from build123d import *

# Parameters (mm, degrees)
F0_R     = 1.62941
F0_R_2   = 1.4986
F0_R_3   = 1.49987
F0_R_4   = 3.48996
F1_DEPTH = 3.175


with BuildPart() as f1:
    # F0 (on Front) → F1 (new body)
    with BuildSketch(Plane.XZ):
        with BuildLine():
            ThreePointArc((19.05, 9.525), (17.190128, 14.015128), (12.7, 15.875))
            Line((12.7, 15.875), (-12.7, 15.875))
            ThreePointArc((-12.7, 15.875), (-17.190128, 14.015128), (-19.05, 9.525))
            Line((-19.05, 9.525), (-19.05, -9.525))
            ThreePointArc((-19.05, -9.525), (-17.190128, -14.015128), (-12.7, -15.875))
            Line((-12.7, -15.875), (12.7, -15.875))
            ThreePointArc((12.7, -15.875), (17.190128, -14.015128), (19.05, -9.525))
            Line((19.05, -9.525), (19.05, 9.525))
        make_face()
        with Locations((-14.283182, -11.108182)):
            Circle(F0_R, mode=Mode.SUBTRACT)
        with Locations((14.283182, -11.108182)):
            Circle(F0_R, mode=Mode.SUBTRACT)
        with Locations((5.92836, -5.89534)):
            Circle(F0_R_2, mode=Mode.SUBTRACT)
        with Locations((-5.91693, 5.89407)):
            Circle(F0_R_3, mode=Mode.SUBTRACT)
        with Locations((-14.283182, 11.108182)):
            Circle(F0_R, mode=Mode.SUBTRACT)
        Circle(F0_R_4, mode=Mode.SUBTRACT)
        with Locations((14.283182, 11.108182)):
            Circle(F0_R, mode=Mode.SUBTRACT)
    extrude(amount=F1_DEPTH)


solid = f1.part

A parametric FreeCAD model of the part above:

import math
import FreeCAD as App
import Part
import Sketcher
from FreeCAD import Vector
Q = App.Units.Quantity

doc = App.newDocument("Part")
body = doc.addObject("PartDesign::Body", "Body")

sketch1 = doc.addObject("Sketcher::SketchObject", "Sketch")
body.addObject(sketch1)
sketch1.AttachmentSupport = (doc.XZ_Plane, [""])
sketch1.MapMode = "FlatFace"
sketch1.addGeometry(Part.ArcOfCircle(Part.Circle(Vector(12.7, 9.525, 0), Vector(0, 0, 1), 6.35), math.radians(0.000002), math.radians(89.999998)), False)
sketch1.addGeometry(Part.LineSegment(Vector(12.7, 15.875, 0), Vector(-12.7, 15.875, 0)), False)
sketch1.addGeometry(Part.ArcOfCircle(Part.Circle(Vector(-12.7, 9.525, 0), Vector(0, 0, 1), 6.35), math.radians(90.000002), math.radians(179.999998)), False)
sketch1.addGeometry(Part.LineSegment(Vector(-19.05, 9.525, 0), Vector(-19.05, -9.525, 0)), False)
sketch1.addGeometry(Part.ArcOfCircle(Part.Circle(Vector(-12.7, -9.525, 0), Vector(0, 0, 1), 6.35), math.radians(-179.999998), math.radians(-90.000002)), False)
sketch1.addGeometry(Part.LineSegment(Vector(-12.7, -15.875, 0), Vector(12.7, -15.875, 0)), False)
sketch1.addGeometry(Part.ArcOfCircle(Part.Circle(Vector(12.7, -9.525, 0), Vector(0, 0, 1), 6.35), math.radians(-89.999998), math.radians(-0.000002)), False)
sketch1.addGeometry(Part.LineSegment(Vector(19.05, -9.525, 0), Vector(19.05, 9.525, 0)), False)
sketch1.addGeometry(Part.Circle(Vector(-14.283182, -11.108182, 0), Vector(0, 0, 1), 1.62941), False)
sketch1.addGeometry(Part.Circle(Vector(14.283182, -11.108182, 0), Vector(0, 0, 1), 1.62941), False)
sketch1.addGeometry(Part.Circle(Vector(5.92836, -5.89534, 0), Vector(0, 0, 1), 1.4986), False)
sketch1.addGeometry(Part.Circle(Vector(-5.91693, 5.89407, 0), Vector(0, 0, 1), 1.49987), False)
sketch1.addGeometry(Part.Circle(Vector(-14.283182, 11.108182, 0), Vector(0, 0, 1), 1.62941), False)
sketch1.addGeometry(Part.Circle(Vector(0, 0, 0), Vector(0, 0, 1), 3.48996), False)
sketch1.addGeometry(Part.Circle(Vector(14.283182, 11.108182, 0), Vector(0, 0, 1), 1.62941), False)
sketch1.addConstraint(Sketcher.Constraint("Tangent", 0, 2, 1, 1))
sketch1.addConstraint(Sketcher.Constraint("Tangent", 1, 2, 2, 1))
sketch1.addConstraint(Sketcher.Constraint("Tangent", 2, 2, 3, 1))
sketch1.addConstraint(Sketcher.Constraint("Tangent", 3, 2, 4, 1))
sketch1.addConstraint(Sketcher.Constraint("Tangent", 4, 2, 5, 1))
sketch1.addConstraint(Sketcher.Constraint("Tangent", 5, 2, 6, 1))
sketch1.addConstraint(Sketcher.Constraint("Tangent", 6, 2, 7, 1))
sketch1.addConstraint(Sketcher.Constraint("Tangent", 7, 2, 0, 1))
sketch1.addConstraint(Sketcher.Constraint("Horizontal", 1))
sketch1.addConstraint(Sketcher.Constraint("Vertical", 3))
sketch1.addConstraint(Sketcher.Constraint("Horizontal", 5))
sketch1.addConstraint(Sketcher.Constraint("Vertical", 7))
sketch1.addConstraint(Sketcher.Constraint("Coincident", 13, 3, -1, 1))
sketch1.addConstraint(Sketcher.Constraint("Equal", 0, 2))
sketch1.addConstraint(Sketcher.Constraint("Equal", 2, 4))
sketch1.addConstraint(Sketcher.Constraint("Equal", 4, 6))
sketch1.addConstraint(Sketcher.Constraint("Equal", 8, 9))
sketch1.addConstraint(Sketcher.Constraint("Equal", 9, 12))
sketch1.addConstraint(Sketcher.Constraint("Equal", 12, 14))
sketch1.addConstraint(Sketcher.Constraint("Symmetric", 0, 3, 4, 3, -1, 1))
sketch1.addConstraint(Sketcher.Constraint("Symmetric", 9, 3, 12, 3, -1, 1))
sketch1.addConstraint(Sketcher.Constraint("Symmetric", 8, 3, 14, 3, -1, 1))
sketch1.addConstraint(Sketcher.Constraint("Symmetric", 8, 3, 9, 3, -2))
sketch1.addConstraint(Sketcher.Constraint("DistanceX", 1, 2, 1, 1, Q("1 in")))
sketch1.addConstraint(Sketcher.Constraint("Radius", 0, Q("0.25 in")))
sketch1.addConstraint(Sketcher.Constraint("Diameter", 10, Q("0.118 in")))
sketch1.addConstraint(Sketcher.Constraint("DistanceY", 4, 3, 1, 2, Q("1 in")))
sketch1.addConstraint(Sketcher.Constraint("Diameter", 8, Q("0.1283 in")))
sketch1.addConstraint(Sketcher.Constraint("Diameter", 11, Q("0.1181 in")))
sketch1.addConstraint(Sketcher.Constraint("Diameter", 13, Q("0.2748 in")))
sketch1.addConstraint(Sketcher.Constraint("DistanceX", -1, 1, 10, 3, Q("0.2334 in")))
sketch1.addConstraint(Sketcher.Constraint("DistanceY", 10, 3, -1, 1, Q("0.2321 in")))
sketch1.addConstraint(Sketcher.Constraint("DistanceY", 8, 3, -1, 1, Q("11.108182 mm")))
sketch1.addConstraint(Sketcher.Constraint("DistanceX", 11, 3, -1, 1, Q("5.91693 mm")))
sketch1.addConstraint(Sketcher.Constraint("DistanceY", -1, 1, 11, 3, Q("5.89407 mm")))
sketch1.addConstraint(Sketcher.Constraint("DistanceX", 8, 3, 6, 3, Q("26.983182 mm")))
pad1 = doc.addObject("PartDesign::Pad", "Pad")
body.addObject(pad1)
pad1.Profile = sketch1
pad1.Length = Q("0.125 in")

doc.recompute()
